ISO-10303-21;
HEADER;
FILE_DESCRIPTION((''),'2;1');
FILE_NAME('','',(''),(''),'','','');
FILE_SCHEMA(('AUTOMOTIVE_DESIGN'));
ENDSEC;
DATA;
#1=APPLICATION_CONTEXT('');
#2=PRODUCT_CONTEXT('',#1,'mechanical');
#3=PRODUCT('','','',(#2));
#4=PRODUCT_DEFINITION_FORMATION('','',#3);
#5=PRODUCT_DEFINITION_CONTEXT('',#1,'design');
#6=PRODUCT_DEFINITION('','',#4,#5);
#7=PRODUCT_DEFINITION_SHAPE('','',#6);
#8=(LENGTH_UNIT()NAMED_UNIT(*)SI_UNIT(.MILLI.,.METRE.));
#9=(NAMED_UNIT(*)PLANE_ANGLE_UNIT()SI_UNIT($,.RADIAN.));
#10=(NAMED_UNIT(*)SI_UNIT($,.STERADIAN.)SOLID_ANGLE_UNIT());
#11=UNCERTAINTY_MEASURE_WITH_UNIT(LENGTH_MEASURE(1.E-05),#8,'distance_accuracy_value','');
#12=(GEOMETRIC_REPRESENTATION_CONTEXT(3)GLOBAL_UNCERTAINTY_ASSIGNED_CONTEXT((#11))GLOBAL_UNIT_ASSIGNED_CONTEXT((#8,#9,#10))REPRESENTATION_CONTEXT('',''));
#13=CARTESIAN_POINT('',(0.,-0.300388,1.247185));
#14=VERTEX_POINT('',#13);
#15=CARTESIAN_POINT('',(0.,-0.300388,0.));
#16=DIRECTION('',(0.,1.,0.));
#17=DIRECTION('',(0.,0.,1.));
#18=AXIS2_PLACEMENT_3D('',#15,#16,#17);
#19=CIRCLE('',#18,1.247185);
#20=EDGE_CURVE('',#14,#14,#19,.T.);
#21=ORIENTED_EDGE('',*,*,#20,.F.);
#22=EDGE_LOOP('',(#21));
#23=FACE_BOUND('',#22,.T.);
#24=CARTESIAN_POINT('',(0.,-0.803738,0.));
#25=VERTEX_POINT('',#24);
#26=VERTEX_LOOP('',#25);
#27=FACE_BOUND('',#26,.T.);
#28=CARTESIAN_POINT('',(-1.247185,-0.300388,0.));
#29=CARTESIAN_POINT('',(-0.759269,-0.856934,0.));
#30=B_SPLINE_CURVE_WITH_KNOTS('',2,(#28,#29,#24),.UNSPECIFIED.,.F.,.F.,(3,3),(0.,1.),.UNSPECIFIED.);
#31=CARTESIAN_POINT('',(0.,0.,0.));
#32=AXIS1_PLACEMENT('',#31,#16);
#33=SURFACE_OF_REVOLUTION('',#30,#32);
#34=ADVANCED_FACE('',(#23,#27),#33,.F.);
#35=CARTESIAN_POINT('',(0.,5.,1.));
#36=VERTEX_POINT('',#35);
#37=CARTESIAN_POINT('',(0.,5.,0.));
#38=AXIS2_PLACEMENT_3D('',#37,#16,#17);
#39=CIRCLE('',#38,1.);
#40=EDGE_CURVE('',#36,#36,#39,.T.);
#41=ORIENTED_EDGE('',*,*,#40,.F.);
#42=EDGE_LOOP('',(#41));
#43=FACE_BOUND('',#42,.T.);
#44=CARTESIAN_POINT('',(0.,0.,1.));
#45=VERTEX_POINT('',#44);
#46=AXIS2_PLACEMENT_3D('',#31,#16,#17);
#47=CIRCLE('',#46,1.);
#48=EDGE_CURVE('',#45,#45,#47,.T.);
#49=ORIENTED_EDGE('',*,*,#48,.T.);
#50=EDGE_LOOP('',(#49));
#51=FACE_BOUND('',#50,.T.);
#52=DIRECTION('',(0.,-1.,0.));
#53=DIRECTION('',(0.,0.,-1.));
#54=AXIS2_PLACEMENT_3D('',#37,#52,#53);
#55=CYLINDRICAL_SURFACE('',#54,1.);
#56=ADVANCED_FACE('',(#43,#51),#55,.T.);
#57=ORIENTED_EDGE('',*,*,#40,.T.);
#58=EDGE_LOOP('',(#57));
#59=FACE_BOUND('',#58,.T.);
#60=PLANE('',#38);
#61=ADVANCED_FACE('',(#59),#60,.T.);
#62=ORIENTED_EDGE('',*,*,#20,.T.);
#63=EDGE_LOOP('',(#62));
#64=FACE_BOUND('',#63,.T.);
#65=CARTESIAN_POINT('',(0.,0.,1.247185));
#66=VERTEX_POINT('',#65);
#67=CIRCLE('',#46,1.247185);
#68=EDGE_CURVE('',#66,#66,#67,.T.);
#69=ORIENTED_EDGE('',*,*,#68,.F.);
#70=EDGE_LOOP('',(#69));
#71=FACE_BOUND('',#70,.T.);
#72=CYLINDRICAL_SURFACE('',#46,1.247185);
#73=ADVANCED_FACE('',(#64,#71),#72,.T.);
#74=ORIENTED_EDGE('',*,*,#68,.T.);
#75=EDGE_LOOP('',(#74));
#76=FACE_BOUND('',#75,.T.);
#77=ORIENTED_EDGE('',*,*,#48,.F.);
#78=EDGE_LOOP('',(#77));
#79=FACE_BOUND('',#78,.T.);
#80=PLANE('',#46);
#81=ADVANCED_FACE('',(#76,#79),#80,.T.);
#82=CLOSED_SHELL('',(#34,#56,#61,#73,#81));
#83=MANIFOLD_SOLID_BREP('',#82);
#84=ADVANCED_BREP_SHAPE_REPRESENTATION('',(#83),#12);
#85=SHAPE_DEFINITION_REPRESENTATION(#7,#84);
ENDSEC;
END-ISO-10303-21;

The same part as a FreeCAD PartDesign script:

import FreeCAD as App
import Part
import Sketcher

doc = App.newDocument("Part")
body = doc.addObject("PartDesign::Body", "Body")

# Sketch on XZ plane
sketch1 = body.newObject("Sketcher::SketchObject", "Sketch")
sketch1.AttachmentSupport = (doc.getObject("XZ_Plane"), [""])
sketch1.MapMode = "FlatFace"
sketch1.addGeometry(Part.Circle(App.Vector(0, 0, 0), App.Vector(0, 0, 1), 1), False)
sketch1.addConstraint([
    Sketcher.Constraint("Coincident", 0, 3, -1, 1),
    Sketcher.Constraint("Diameter", 0, 2.0),
])
pad1 = body.newObject("PartDesign::Pad", "Pad")
pad1.Profile = sketch1
pad1.Length = 5
pad1.Reversed = True

# Sketch on XY plane
sketch2 = body.newObject("Sketcher::SketchObject", "Sketch001")
sketch2.AttachmentSupport = (doc.getObject("XY_Plane"), [""])
sketch2.MapMode = "FlatFace"
sketch2.addGeometry([
    Part.LineSegment(App.Vector(0, -0.803738, 0), App.Vector(0, 0, 0)),
    Part.LineSegment(App.Vector(0, 0, 0), App.Vector(-1.247185, 0, 0)),
    Part.LineSegment(App.Vector(-1.247185, 0, 0), App.Vector(-1.247185, -0.300388, 0)),
    Part.BSplineCurve([App.Vector(0, -0.803738, 0), App.Vector(-0.759269, -0.856934, 0), App.Vector(-1.247185, -0.300388, 0)], [3, 3], [0, 1], False, 2, [1, 1, 1], False),
], False)
sketch2.addConstraint([
    Sketcher.Constraint("Block", 3),
    Sketcher.Constraint("Coincident", 0, 2, 1, 1),
    Sketcher.Constraint("Coincident", 1, 2, 2, 1),
    Sketcher.Constraint("Coincident", 2, 2, 3, 2),
    Sketcher.Constraint("Coincident", 3, 1, 0, 1),
    Sketcher.Constraint("Vertical", 0),
    Sketcher.Constraint("Horizontal", 1),
    Sketcher.Constraint("Vertical", 2),
    Sketcher.Constraint("PointOnObject", 1, 2, -1),
])
revolution = body.newObject("PartDesign::Revolution", "Revolution")
revolution.Profile = sketch2
revolution.ReferenceAxis = (sketch2, ["V_Axis"])
revolution.Angle = 360

doc.recompute()
